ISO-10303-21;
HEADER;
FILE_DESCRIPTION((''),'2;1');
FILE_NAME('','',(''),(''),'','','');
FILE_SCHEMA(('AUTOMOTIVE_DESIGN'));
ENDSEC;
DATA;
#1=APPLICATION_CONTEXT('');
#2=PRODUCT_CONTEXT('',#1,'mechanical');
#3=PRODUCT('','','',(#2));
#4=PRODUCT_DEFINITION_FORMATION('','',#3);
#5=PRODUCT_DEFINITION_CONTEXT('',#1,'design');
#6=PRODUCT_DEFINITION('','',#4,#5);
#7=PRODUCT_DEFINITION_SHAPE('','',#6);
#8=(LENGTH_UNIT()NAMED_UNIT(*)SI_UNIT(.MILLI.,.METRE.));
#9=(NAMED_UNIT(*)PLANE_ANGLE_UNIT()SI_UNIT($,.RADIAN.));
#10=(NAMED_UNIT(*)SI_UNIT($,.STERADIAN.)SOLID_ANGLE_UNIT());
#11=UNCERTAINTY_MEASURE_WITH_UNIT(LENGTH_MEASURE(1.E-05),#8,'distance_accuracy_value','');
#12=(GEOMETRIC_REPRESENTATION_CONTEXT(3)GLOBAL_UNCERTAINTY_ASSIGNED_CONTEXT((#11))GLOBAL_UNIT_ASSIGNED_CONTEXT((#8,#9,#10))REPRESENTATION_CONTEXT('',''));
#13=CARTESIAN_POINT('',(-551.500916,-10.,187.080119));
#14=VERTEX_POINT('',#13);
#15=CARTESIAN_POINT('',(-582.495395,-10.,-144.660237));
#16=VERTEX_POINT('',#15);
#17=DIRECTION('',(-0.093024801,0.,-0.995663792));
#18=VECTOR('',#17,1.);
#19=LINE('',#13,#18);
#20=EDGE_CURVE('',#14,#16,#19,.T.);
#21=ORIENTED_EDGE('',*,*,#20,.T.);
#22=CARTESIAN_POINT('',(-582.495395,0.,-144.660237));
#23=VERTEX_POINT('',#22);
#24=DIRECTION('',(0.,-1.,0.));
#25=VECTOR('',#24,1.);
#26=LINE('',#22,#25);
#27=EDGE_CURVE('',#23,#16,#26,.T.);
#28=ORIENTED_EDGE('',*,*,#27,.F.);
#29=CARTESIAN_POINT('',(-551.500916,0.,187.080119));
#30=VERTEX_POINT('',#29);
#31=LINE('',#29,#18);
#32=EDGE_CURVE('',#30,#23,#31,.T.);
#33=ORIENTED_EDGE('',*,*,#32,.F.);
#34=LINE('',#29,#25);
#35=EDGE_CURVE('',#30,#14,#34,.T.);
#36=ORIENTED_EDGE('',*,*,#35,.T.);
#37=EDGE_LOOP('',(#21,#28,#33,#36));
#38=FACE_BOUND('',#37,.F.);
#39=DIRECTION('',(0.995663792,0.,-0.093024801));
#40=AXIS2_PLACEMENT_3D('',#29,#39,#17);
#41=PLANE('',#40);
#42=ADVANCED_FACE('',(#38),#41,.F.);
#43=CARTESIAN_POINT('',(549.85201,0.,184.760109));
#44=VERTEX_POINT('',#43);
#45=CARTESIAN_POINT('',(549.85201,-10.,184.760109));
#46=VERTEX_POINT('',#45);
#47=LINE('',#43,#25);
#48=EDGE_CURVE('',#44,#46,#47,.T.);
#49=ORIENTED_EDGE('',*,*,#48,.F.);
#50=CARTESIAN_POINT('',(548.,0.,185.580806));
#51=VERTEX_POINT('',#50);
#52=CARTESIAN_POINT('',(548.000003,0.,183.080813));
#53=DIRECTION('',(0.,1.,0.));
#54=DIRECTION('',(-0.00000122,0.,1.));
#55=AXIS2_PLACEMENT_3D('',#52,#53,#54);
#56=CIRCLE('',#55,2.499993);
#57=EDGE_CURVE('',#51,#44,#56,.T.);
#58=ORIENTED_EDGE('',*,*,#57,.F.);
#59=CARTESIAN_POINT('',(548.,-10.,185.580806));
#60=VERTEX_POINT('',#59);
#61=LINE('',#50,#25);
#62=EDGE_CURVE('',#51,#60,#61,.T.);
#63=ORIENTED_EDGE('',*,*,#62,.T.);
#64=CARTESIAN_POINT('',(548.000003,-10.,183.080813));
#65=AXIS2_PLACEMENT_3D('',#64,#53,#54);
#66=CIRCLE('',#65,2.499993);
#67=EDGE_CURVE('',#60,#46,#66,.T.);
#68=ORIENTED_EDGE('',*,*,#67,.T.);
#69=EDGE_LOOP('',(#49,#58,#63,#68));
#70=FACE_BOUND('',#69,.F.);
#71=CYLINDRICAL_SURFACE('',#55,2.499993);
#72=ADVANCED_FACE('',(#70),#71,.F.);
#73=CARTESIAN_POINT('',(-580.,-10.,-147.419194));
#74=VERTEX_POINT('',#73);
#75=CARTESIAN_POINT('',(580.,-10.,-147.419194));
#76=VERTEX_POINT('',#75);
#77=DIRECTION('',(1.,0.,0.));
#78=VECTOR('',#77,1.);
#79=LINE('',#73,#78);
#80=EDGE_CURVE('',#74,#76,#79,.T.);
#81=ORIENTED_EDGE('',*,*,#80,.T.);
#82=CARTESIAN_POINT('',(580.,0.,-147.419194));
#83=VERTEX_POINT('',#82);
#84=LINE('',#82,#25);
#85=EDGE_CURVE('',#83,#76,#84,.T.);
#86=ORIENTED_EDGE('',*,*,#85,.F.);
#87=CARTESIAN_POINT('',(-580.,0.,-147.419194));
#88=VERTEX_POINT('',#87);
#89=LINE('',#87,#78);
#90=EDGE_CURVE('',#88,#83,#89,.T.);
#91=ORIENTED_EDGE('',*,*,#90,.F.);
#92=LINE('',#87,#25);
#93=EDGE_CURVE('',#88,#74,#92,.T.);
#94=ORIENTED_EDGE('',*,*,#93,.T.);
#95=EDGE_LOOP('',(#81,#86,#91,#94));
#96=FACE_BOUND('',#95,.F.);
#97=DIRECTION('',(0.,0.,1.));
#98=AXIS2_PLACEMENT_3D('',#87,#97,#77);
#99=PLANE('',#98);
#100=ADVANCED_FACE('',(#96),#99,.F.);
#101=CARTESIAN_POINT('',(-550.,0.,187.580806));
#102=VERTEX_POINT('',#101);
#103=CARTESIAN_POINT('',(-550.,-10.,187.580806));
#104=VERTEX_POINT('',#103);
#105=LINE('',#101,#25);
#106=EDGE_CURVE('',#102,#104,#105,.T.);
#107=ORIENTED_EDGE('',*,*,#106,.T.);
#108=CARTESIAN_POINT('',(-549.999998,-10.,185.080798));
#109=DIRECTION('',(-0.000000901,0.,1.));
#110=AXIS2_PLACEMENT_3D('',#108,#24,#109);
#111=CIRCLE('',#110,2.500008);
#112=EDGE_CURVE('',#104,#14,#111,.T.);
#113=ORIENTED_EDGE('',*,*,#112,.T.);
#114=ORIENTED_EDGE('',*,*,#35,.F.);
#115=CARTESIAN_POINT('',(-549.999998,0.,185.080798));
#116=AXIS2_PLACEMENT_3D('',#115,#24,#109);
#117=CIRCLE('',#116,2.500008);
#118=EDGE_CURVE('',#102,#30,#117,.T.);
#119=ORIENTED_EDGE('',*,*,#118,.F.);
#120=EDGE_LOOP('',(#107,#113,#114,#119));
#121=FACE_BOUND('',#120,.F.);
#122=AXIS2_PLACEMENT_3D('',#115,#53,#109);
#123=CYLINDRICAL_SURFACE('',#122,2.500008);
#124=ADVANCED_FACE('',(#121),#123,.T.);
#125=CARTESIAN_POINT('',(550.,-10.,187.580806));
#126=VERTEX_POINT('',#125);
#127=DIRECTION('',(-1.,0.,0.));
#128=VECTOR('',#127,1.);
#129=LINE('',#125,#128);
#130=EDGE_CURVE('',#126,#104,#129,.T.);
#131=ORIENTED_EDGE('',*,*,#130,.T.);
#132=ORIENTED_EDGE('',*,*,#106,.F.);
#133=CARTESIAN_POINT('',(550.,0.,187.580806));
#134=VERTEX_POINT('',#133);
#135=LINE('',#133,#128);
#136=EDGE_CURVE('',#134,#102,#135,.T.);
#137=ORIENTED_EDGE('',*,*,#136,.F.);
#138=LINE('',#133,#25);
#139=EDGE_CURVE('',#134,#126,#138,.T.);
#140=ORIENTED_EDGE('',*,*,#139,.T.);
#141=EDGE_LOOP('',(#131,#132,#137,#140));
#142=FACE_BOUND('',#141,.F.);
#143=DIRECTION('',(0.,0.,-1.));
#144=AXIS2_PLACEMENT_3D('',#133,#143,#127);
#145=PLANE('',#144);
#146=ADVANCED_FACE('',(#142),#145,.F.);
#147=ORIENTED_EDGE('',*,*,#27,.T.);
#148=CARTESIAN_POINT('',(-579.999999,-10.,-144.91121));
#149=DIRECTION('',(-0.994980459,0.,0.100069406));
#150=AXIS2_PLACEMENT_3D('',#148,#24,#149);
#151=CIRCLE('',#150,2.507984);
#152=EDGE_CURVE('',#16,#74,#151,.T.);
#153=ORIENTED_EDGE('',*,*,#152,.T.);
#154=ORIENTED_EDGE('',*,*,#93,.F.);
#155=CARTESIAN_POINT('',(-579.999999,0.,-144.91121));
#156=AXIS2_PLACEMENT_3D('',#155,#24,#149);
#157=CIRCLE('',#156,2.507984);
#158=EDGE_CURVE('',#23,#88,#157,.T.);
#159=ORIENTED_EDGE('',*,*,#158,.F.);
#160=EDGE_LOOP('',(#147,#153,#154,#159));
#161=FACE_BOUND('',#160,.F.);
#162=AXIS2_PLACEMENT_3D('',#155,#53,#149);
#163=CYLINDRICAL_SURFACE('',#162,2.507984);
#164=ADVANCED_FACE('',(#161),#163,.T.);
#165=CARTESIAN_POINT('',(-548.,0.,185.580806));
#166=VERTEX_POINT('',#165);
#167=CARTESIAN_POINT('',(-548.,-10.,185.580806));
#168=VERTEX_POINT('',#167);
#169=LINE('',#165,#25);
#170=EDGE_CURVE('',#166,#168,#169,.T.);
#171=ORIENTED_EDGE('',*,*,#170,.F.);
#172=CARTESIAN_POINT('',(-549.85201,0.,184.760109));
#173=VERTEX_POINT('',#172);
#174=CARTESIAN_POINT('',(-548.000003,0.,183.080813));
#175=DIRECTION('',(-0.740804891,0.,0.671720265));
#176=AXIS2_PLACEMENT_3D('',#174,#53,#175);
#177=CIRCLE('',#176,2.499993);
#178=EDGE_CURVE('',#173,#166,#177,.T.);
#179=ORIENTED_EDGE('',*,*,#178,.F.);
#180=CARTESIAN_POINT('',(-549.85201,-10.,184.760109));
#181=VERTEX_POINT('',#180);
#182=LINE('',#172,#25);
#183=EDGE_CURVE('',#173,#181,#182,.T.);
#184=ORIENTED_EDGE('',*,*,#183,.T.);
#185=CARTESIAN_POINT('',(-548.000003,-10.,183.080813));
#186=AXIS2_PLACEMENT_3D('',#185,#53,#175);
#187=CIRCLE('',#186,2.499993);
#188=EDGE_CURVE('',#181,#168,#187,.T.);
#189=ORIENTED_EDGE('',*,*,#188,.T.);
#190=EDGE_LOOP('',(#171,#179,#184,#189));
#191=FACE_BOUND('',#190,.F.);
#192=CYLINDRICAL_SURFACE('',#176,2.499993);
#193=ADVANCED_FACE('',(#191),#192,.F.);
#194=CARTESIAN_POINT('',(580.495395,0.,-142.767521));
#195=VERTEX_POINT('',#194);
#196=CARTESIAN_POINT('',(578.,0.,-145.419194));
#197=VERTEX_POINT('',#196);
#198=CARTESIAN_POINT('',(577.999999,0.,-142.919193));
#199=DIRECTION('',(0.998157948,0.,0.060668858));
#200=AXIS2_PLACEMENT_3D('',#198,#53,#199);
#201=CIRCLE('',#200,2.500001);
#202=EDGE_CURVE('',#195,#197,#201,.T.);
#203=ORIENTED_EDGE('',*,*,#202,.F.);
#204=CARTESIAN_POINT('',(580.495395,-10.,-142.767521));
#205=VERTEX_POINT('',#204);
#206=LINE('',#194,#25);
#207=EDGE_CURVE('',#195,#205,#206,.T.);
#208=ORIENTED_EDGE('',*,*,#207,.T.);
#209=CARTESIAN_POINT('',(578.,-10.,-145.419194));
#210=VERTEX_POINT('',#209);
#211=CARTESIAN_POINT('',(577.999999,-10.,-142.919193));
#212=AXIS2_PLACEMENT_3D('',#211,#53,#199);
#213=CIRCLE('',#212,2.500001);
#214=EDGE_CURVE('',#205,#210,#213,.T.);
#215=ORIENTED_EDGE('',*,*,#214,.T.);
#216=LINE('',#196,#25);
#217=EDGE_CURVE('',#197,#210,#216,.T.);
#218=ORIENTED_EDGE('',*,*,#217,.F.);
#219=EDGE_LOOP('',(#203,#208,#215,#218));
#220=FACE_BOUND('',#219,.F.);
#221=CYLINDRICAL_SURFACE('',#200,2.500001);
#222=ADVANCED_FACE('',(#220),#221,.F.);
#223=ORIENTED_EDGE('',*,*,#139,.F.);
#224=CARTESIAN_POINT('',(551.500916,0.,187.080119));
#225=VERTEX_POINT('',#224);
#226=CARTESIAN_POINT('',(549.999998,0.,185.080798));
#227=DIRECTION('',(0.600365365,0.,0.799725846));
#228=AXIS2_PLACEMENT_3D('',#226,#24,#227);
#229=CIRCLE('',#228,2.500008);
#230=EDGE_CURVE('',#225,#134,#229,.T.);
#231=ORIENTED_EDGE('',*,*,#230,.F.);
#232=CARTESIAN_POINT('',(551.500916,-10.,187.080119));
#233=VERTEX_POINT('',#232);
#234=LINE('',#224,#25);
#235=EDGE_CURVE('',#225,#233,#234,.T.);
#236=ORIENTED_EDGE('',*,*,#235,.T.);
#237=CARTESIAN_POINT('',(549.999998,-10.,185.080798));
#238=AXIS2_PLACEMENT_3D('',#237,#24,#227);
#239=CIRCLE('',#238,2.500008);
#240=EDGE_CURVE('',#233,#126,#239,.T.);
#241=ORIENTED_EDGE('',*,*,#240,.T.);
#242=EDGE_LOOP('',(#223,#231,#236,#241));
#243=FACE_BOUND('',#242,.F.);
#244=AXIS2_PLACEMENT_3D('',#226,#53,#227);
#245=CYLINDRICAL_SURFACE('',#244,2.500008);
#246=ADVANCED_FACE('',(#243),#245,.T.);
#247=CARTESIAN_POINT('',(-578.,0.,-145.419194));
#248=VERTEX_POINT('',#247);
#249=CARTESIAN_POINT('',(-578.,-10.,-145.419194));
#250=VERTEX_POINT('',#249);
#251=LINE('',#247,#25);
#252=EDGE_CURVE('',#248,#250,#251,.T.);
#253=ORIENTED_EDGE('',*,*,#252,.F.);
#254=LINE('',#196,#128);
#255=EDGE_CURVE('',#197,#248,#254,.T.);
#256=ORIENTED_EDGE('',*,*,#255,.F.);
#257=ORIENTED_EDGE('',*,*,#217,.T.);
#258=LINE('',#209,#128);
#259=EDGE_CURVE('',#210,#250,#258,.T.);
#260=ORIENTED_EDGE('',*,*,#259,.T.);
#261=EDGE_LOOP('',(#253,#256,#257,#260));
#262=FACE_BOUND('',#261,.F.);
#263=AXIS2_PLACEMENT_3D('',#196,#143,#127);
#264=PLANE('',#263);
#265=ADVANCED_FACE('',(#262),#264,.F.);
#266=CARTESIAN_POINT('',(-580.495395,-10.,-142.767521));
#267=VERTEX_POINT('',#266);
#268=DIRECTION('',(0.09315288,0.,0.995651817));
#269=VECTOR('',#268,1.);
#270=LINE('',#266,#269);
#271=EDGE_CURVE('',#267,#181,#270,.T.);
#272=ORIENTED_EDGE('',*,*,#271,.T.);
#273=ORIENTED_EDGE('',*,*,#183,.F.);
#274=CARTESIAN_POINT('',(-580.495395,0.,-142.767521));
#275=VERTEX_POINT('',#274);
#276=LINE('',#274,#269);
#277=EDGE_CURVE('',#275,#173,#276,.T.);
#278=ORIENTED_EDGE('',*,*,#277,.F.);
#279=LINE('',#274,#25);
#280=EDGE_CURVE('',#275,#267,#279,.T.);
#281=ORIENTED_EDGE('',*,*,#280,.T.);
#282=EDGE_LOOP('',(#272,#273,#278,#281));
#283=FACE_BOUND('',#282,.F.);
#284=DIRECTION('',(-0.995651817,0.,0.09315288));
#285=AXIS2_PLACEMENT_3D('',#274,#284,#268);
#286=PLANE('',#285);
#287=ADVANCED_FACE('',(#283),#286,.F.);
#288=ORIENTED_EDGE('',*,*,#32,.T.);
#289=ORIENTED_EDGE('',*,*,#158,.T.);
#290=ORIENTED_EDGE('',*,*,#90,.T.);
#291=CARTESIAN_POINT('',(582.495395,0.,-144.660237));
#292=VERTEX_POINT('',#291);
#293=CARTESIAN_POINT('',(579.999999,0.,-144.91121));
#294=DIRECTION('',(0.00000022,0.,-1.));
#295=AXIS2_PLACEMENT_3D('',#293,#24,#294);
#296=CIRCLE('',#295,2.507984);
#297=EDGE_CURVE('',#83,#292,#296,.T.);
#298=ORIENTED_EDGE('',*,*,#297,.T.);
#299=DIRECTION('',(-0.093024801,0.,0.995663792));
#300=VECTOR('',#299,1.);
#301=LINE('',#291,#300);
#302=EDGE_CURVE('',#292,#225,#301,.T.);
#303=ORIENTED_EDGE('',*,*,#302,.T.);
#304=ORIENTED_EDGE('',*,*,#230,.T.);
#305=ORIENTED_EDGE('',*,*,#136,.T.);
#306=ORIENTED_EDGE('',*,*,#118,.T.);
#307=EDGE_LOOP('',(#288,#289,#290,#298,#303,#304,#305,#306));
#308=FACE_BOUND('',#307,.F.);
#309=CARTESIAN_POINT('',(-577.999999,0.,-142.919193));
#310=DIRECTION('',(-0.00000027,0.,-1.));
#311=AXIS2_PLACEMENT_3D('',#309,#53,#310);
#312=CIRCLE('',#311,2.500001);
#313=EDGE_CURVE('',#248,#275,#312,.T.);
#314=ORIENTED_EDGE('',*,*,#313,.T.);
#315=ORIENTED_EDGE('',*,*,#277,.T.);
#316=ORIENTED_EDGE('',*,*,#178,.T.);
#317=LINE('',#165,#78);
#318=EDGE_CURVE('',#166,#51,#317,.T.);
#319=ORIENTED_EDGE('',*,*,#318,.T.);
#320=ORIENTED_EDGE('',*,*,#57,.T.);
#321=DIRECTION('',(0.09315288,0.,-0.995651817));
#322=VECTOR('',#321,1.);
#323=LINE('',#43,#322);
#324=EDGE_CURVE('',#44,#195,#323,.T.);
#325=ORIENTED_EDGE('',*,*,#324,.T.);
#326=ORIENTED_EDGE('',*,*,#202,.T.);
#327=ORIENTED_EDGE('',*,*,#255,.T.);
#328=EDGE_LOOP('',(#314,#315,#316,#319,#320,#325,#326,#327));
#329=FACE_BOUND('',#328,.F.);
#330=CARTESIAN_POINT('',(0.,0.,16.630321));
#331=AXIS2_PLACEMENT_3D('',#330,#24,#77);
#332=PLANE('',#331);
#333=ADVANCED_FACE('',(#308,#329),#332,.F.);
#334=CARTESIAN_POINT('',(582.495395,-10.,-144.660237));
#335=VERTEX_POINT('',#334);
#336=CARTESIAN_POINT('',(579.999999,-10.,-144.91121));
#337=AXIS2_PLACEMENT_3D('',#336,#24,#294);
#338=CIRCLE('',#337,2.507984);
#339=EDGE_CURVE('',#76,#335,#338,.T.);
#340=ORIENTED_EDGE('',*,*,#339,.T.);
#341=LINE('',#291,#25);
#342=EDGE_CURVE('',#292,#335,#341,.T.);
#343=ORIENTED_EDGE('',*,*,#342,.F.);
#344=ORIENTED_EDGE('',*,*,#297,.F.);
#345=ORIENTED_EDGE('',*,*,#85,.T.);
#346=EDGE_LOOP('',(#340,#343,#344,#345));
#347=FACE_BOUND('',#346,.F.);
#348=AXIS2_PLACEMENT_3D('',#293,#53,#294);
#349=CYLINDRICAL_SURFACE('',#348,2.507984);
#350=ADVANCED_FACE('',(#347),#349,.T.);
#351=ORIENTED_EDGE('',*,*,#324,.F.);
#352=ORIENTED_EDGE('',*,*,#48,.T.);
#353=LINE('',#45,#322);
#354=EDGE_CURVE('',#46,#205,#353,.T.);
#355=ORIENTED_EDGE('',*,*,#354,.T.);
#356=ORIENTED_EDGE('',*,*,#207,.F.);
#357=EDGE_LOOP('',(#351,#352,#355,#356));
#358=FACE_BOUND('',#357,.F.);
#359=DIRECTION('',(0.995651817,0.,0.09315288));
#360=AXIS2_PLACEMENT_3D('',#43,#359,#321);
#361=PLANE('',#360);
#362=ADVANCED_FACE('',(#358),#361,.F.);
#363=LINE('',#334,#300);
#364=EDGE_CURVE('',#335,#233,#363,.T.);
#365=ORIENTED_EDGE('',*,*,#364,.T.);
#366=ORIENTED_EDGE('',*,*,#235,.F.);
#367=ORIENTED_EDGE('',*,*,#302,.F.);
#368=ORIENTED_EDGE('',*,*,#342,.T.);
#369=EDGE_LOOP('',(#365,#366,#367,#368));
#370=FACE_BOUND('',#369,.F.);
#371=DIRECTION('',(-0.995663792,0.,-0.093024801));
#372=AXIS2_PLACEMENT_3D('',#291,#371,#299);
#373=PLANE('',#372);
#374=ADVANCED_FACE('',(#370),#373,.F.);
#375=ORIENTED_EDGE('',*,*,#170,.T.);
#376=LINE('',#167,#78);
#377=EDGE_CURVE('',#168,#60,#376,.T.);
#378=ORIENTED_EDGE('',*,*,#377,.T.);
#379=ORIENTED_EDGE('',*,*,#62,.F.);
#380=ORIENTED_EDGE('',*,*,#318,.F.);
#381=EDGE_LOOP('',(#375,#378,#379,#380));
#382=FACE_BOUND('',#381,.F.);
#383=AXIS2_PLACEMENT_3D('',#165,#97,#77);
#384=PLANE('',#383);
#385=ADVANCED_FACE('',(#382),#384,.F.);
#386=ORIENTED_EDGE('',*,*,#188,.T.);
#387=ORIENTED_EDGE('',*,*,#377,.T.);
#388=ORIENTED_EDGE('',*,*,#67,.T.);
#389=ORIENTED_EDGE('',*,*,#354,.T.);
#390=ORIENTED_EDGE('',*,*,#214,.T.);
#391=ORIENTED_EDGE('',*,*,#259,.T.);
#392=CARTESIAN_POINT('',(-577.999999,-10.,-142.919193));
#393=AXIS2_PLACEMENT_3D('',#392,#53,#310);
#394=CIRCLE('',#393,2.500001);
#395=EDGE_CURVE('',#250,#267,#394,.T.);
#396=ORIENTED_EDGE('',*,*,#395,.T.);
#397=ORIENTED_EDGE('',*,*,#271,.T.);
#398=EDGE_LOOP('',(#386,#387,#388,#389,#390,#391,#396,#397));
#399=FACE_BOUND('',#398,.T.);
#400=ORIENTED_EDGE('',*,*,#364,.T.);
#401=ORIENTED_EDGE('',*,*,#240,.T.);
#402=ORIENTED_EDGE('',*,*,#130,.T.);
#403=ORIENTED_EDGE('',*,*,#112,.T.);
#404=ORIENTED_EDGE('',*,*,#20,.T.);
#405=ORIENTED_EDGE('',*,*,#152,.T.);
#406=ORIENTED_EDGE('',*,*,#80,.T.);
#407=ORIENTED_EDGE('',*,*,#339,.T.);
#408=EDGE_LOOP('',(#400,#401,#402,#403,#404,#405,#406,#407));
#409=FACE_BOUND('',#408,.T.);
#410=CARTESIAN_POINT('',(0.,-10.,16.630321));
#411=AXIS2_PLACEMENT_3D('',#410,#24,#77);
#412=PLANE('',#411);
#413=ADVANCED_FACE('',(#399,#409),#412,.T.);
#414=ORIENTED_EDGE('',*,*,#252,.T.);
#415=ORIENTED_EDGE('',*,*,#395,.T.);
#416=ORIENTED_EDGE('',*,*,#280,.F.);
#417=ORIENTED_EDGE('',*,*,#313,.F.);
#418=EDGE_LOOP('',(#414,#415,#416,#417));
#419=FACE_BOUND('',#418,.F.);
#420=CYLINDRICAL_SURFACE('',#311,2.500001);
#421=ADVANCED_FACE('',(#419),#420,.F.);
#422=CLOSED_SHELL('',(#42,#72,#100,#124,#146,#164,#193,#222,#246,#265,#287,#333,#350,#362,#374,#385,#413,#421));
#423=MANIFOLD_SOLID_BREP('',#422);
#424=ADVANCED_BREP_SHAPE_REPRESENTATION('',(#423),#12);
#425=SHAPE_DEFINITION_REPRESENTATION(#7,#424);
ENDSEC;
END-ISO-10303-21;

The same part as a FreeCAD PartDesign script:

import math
import FreeCAD as App
import Part
import Sketcher

V = App.Vector
Q = App.Units.Quantity

doc = App.newDocument("Part")
body = doc.addObject("PartDesign::Body", "Body")

# Sketch on XZ plane
sketch1 = body.newObject("Sketcher::SketchObject", "Sketch")
sketch1.AttachmentSupport = (doc.getObject("XZ_Plane"), [""])
sketch1.MapMode = "FlatFace"
sketch1.addGeometry([
    Part.ArcOfCircle(Part.Circle(V(-550, 185.1, 0), V(0, 0, 1), 2.5), math.radians(90), math.radians(127)),  # 0
    Part.LineSegment(V(-551.5, 187.1, 0), V(-582.5, -144.7, 0)),  # 1
    Part.ArcOfCircle(Part.Circle(V(-580, -144.9, 0), V(0, 0, 1), 2.5), math.radians(174), math.radians(270)),  # 2
    Part.LineSegment(V(-580, -147.4, 0), V(580, -147.4, 0)),  # 3
    Part.ArcOfCircle(Part.Circle(V(580, -144.9, 0), V(0, 0, 1), 2.5), math.radians(-90), math.radians(6)),  # 4
    Part.LineSegment(V(582.5, -144.7, 0), V(551.5, 187.1, 0)),  # 5
    Part.ArcOfCircle(Part.Circle(V(550, 185.1, 0), V(0, 0, 1), 2.5), math.radians(53), math.radians(90)),  # 6
    Part.LineSegment(V(550, 187.6, 0), V(-550, 187.6, 0)),  # 7
    Part.LineSegment(V(-580.5, -142.8, 0), V(-549.9, 184.8, 0)),  # 8
    Part.ArcOfCircle(Part.Circle(V(-548, 183.1, 0), V(0, 0, 1), 2.5), math.radians(90), math.radians(138)),  # 9
    Part.LineSegment(V(-548, 185.6, 0), V(548, 185.6, 0)),  # 10
    Part.ArcOfCircle(Part.Circle(V(548, 183.1, 0), V(0, 0, 1), 2.5), math.radians(42), math.radians(90)),  # 11
    Part.LineSegment(V(549.9, 184.8, 0), V(580.5, -142.8, 0)),  # 12
    Part.ArcOfCircle(Part.Circle(V(578, -142.9, 0), V(0, 0, 1), 2.5), math.radians(-90), math.radians(3)),  # 13
    Part.LineSegment(V(578, -145.4, 0), V(-578, -145.4, 0)),  # 14
    Part.ArcOfCircle(Part.Circle(V(-578, -142.9, 0), V(0, 0, 1), 2.5), math.radians(177), math.radians(270)),  # 15
], False)
sketch1.addConstraint([
    Sketcher.Constraint("Coincident", 0, 2, 1, 1),
    Sketcher.Constraint("Coincident", 1, 2, 2, 1),
    Sketcher.Constraint("Tangent", 2, 2, 3, 1),
    Sketcher.Constraint("Tangent", 3, 2, 4, 1),
    Sketcher.Constraint("Coincident", 4, 2, 5, 1),
    Sketcher.Constraint("Coincident", 5, 2, 6, 1),
    Sketcher.Constraint("Tangent", 6, 2, 7, 1),
    Sketcher.Constraint("Tangent", 7, 2, 0, 1),
    Sketcher.Constraint("Coincident", 8, 2, 9, 2),
    Sketcher.Constraint("Tangent", 9, 1, 10, 1),
    Sketcher.Constraint("Tangent", 10, 2, 11, 2),
    Sketcher.Constraint("Coincident", 11, 1, 12, 1),
    Sketcher.Constraint("Coincident", 12, 2, 13, 2),
    Sketcher.Constraint("Tangent", 13, 1, 14, 1),
    Sketcher.Constraint("Tangent", 14, 2, 15, 2),
    Sketcher.Constraint("Coincident", 15, 1, 8, 1),
    Sketcher.Constraint("Horizontal", 3),
    Sketcher.Constraint("Horizontal", 7),
    Sketcher.Constraint("Horizontal", 10),
    Sketcher.Constraint("Horizontal", 14),
    Sketcher.Constraint("Equal", 2, 4),
    Sketcher.Constraint("Equal", 0, 6),
    Sketcher.Constraint("Equal", 9, 11),
    Sketcher.Constraint("Equal", 13, 15),
    Sketcher.Constraint("Symmetric", 1, 2, 4, 2, -2),
    Sketcher.Constraint("Symmetric", 0, 2, 5, 2, -2),
    Sketcher.Constraint("Symmetric", 8, 2, 11, 1, -2),
    Sketcher.Constraint("Symmetric", 12, 2, 15, 1, -2),
    Sketcher.Constraint("Radius", 13, Q("2.500001 mm")),
    Sketcher.Constraint("DistanceX", 3, 1, 3, 2, Q("1160 mm")),
    Sketcher.Constraint("DistanceX", 7, 2, 7, 1, Q("1100 mm")),
    Sketcher.Constraint("DistanceX", 10, 1, 10, 2, Q("1096 mm")),
    Sketcher.Constraint("DistanceX", 14, 2, 14, 1, Q("1156 mm")),
    Sketcher.Constraint("DistanceY", 9, 1, 7, 2, Q("2 mm")),
    Sketcher.Constraint("DistanceX", 12, 2, 4, 2, Q("2 mm")),
    Sketcher.Constraint("DistanceY", 3, 2, 13, 1, Q("2 mm")),
    Sketcher.Constraint("DistanceY", 13, 3, 6, 2, Q("330.499999 mm")),
    Sketcher.Constraint("Radius", 0, Q("2.500008 mm")),
    Sketcher.Constraint("Distance", 8, Q("328.958 mm")),
    Sketcher.Constraint("Radius", 2, Q("2.507984 mm")),
    Sketcher.Constraint("Radius", 9, Q("2.499993 mm")),
    Sketcher.Constraint("DistanceY", 2, 3, -1, 1, Q("144.91121 mm")),
    Sketcher.Constraint("DistanceY", -1, 1, 0, 2, Q("187.080119 mm")),
    Sketcher.Constraint("DistanceX", 8, 2, -1, 1, Q("549.85201 mm")),
])
pad1 = body.newObject("PartDesign::Pad", "Pad")
pad1.Profile = sketch1
pad1.Length = 10

doc.recompute()
